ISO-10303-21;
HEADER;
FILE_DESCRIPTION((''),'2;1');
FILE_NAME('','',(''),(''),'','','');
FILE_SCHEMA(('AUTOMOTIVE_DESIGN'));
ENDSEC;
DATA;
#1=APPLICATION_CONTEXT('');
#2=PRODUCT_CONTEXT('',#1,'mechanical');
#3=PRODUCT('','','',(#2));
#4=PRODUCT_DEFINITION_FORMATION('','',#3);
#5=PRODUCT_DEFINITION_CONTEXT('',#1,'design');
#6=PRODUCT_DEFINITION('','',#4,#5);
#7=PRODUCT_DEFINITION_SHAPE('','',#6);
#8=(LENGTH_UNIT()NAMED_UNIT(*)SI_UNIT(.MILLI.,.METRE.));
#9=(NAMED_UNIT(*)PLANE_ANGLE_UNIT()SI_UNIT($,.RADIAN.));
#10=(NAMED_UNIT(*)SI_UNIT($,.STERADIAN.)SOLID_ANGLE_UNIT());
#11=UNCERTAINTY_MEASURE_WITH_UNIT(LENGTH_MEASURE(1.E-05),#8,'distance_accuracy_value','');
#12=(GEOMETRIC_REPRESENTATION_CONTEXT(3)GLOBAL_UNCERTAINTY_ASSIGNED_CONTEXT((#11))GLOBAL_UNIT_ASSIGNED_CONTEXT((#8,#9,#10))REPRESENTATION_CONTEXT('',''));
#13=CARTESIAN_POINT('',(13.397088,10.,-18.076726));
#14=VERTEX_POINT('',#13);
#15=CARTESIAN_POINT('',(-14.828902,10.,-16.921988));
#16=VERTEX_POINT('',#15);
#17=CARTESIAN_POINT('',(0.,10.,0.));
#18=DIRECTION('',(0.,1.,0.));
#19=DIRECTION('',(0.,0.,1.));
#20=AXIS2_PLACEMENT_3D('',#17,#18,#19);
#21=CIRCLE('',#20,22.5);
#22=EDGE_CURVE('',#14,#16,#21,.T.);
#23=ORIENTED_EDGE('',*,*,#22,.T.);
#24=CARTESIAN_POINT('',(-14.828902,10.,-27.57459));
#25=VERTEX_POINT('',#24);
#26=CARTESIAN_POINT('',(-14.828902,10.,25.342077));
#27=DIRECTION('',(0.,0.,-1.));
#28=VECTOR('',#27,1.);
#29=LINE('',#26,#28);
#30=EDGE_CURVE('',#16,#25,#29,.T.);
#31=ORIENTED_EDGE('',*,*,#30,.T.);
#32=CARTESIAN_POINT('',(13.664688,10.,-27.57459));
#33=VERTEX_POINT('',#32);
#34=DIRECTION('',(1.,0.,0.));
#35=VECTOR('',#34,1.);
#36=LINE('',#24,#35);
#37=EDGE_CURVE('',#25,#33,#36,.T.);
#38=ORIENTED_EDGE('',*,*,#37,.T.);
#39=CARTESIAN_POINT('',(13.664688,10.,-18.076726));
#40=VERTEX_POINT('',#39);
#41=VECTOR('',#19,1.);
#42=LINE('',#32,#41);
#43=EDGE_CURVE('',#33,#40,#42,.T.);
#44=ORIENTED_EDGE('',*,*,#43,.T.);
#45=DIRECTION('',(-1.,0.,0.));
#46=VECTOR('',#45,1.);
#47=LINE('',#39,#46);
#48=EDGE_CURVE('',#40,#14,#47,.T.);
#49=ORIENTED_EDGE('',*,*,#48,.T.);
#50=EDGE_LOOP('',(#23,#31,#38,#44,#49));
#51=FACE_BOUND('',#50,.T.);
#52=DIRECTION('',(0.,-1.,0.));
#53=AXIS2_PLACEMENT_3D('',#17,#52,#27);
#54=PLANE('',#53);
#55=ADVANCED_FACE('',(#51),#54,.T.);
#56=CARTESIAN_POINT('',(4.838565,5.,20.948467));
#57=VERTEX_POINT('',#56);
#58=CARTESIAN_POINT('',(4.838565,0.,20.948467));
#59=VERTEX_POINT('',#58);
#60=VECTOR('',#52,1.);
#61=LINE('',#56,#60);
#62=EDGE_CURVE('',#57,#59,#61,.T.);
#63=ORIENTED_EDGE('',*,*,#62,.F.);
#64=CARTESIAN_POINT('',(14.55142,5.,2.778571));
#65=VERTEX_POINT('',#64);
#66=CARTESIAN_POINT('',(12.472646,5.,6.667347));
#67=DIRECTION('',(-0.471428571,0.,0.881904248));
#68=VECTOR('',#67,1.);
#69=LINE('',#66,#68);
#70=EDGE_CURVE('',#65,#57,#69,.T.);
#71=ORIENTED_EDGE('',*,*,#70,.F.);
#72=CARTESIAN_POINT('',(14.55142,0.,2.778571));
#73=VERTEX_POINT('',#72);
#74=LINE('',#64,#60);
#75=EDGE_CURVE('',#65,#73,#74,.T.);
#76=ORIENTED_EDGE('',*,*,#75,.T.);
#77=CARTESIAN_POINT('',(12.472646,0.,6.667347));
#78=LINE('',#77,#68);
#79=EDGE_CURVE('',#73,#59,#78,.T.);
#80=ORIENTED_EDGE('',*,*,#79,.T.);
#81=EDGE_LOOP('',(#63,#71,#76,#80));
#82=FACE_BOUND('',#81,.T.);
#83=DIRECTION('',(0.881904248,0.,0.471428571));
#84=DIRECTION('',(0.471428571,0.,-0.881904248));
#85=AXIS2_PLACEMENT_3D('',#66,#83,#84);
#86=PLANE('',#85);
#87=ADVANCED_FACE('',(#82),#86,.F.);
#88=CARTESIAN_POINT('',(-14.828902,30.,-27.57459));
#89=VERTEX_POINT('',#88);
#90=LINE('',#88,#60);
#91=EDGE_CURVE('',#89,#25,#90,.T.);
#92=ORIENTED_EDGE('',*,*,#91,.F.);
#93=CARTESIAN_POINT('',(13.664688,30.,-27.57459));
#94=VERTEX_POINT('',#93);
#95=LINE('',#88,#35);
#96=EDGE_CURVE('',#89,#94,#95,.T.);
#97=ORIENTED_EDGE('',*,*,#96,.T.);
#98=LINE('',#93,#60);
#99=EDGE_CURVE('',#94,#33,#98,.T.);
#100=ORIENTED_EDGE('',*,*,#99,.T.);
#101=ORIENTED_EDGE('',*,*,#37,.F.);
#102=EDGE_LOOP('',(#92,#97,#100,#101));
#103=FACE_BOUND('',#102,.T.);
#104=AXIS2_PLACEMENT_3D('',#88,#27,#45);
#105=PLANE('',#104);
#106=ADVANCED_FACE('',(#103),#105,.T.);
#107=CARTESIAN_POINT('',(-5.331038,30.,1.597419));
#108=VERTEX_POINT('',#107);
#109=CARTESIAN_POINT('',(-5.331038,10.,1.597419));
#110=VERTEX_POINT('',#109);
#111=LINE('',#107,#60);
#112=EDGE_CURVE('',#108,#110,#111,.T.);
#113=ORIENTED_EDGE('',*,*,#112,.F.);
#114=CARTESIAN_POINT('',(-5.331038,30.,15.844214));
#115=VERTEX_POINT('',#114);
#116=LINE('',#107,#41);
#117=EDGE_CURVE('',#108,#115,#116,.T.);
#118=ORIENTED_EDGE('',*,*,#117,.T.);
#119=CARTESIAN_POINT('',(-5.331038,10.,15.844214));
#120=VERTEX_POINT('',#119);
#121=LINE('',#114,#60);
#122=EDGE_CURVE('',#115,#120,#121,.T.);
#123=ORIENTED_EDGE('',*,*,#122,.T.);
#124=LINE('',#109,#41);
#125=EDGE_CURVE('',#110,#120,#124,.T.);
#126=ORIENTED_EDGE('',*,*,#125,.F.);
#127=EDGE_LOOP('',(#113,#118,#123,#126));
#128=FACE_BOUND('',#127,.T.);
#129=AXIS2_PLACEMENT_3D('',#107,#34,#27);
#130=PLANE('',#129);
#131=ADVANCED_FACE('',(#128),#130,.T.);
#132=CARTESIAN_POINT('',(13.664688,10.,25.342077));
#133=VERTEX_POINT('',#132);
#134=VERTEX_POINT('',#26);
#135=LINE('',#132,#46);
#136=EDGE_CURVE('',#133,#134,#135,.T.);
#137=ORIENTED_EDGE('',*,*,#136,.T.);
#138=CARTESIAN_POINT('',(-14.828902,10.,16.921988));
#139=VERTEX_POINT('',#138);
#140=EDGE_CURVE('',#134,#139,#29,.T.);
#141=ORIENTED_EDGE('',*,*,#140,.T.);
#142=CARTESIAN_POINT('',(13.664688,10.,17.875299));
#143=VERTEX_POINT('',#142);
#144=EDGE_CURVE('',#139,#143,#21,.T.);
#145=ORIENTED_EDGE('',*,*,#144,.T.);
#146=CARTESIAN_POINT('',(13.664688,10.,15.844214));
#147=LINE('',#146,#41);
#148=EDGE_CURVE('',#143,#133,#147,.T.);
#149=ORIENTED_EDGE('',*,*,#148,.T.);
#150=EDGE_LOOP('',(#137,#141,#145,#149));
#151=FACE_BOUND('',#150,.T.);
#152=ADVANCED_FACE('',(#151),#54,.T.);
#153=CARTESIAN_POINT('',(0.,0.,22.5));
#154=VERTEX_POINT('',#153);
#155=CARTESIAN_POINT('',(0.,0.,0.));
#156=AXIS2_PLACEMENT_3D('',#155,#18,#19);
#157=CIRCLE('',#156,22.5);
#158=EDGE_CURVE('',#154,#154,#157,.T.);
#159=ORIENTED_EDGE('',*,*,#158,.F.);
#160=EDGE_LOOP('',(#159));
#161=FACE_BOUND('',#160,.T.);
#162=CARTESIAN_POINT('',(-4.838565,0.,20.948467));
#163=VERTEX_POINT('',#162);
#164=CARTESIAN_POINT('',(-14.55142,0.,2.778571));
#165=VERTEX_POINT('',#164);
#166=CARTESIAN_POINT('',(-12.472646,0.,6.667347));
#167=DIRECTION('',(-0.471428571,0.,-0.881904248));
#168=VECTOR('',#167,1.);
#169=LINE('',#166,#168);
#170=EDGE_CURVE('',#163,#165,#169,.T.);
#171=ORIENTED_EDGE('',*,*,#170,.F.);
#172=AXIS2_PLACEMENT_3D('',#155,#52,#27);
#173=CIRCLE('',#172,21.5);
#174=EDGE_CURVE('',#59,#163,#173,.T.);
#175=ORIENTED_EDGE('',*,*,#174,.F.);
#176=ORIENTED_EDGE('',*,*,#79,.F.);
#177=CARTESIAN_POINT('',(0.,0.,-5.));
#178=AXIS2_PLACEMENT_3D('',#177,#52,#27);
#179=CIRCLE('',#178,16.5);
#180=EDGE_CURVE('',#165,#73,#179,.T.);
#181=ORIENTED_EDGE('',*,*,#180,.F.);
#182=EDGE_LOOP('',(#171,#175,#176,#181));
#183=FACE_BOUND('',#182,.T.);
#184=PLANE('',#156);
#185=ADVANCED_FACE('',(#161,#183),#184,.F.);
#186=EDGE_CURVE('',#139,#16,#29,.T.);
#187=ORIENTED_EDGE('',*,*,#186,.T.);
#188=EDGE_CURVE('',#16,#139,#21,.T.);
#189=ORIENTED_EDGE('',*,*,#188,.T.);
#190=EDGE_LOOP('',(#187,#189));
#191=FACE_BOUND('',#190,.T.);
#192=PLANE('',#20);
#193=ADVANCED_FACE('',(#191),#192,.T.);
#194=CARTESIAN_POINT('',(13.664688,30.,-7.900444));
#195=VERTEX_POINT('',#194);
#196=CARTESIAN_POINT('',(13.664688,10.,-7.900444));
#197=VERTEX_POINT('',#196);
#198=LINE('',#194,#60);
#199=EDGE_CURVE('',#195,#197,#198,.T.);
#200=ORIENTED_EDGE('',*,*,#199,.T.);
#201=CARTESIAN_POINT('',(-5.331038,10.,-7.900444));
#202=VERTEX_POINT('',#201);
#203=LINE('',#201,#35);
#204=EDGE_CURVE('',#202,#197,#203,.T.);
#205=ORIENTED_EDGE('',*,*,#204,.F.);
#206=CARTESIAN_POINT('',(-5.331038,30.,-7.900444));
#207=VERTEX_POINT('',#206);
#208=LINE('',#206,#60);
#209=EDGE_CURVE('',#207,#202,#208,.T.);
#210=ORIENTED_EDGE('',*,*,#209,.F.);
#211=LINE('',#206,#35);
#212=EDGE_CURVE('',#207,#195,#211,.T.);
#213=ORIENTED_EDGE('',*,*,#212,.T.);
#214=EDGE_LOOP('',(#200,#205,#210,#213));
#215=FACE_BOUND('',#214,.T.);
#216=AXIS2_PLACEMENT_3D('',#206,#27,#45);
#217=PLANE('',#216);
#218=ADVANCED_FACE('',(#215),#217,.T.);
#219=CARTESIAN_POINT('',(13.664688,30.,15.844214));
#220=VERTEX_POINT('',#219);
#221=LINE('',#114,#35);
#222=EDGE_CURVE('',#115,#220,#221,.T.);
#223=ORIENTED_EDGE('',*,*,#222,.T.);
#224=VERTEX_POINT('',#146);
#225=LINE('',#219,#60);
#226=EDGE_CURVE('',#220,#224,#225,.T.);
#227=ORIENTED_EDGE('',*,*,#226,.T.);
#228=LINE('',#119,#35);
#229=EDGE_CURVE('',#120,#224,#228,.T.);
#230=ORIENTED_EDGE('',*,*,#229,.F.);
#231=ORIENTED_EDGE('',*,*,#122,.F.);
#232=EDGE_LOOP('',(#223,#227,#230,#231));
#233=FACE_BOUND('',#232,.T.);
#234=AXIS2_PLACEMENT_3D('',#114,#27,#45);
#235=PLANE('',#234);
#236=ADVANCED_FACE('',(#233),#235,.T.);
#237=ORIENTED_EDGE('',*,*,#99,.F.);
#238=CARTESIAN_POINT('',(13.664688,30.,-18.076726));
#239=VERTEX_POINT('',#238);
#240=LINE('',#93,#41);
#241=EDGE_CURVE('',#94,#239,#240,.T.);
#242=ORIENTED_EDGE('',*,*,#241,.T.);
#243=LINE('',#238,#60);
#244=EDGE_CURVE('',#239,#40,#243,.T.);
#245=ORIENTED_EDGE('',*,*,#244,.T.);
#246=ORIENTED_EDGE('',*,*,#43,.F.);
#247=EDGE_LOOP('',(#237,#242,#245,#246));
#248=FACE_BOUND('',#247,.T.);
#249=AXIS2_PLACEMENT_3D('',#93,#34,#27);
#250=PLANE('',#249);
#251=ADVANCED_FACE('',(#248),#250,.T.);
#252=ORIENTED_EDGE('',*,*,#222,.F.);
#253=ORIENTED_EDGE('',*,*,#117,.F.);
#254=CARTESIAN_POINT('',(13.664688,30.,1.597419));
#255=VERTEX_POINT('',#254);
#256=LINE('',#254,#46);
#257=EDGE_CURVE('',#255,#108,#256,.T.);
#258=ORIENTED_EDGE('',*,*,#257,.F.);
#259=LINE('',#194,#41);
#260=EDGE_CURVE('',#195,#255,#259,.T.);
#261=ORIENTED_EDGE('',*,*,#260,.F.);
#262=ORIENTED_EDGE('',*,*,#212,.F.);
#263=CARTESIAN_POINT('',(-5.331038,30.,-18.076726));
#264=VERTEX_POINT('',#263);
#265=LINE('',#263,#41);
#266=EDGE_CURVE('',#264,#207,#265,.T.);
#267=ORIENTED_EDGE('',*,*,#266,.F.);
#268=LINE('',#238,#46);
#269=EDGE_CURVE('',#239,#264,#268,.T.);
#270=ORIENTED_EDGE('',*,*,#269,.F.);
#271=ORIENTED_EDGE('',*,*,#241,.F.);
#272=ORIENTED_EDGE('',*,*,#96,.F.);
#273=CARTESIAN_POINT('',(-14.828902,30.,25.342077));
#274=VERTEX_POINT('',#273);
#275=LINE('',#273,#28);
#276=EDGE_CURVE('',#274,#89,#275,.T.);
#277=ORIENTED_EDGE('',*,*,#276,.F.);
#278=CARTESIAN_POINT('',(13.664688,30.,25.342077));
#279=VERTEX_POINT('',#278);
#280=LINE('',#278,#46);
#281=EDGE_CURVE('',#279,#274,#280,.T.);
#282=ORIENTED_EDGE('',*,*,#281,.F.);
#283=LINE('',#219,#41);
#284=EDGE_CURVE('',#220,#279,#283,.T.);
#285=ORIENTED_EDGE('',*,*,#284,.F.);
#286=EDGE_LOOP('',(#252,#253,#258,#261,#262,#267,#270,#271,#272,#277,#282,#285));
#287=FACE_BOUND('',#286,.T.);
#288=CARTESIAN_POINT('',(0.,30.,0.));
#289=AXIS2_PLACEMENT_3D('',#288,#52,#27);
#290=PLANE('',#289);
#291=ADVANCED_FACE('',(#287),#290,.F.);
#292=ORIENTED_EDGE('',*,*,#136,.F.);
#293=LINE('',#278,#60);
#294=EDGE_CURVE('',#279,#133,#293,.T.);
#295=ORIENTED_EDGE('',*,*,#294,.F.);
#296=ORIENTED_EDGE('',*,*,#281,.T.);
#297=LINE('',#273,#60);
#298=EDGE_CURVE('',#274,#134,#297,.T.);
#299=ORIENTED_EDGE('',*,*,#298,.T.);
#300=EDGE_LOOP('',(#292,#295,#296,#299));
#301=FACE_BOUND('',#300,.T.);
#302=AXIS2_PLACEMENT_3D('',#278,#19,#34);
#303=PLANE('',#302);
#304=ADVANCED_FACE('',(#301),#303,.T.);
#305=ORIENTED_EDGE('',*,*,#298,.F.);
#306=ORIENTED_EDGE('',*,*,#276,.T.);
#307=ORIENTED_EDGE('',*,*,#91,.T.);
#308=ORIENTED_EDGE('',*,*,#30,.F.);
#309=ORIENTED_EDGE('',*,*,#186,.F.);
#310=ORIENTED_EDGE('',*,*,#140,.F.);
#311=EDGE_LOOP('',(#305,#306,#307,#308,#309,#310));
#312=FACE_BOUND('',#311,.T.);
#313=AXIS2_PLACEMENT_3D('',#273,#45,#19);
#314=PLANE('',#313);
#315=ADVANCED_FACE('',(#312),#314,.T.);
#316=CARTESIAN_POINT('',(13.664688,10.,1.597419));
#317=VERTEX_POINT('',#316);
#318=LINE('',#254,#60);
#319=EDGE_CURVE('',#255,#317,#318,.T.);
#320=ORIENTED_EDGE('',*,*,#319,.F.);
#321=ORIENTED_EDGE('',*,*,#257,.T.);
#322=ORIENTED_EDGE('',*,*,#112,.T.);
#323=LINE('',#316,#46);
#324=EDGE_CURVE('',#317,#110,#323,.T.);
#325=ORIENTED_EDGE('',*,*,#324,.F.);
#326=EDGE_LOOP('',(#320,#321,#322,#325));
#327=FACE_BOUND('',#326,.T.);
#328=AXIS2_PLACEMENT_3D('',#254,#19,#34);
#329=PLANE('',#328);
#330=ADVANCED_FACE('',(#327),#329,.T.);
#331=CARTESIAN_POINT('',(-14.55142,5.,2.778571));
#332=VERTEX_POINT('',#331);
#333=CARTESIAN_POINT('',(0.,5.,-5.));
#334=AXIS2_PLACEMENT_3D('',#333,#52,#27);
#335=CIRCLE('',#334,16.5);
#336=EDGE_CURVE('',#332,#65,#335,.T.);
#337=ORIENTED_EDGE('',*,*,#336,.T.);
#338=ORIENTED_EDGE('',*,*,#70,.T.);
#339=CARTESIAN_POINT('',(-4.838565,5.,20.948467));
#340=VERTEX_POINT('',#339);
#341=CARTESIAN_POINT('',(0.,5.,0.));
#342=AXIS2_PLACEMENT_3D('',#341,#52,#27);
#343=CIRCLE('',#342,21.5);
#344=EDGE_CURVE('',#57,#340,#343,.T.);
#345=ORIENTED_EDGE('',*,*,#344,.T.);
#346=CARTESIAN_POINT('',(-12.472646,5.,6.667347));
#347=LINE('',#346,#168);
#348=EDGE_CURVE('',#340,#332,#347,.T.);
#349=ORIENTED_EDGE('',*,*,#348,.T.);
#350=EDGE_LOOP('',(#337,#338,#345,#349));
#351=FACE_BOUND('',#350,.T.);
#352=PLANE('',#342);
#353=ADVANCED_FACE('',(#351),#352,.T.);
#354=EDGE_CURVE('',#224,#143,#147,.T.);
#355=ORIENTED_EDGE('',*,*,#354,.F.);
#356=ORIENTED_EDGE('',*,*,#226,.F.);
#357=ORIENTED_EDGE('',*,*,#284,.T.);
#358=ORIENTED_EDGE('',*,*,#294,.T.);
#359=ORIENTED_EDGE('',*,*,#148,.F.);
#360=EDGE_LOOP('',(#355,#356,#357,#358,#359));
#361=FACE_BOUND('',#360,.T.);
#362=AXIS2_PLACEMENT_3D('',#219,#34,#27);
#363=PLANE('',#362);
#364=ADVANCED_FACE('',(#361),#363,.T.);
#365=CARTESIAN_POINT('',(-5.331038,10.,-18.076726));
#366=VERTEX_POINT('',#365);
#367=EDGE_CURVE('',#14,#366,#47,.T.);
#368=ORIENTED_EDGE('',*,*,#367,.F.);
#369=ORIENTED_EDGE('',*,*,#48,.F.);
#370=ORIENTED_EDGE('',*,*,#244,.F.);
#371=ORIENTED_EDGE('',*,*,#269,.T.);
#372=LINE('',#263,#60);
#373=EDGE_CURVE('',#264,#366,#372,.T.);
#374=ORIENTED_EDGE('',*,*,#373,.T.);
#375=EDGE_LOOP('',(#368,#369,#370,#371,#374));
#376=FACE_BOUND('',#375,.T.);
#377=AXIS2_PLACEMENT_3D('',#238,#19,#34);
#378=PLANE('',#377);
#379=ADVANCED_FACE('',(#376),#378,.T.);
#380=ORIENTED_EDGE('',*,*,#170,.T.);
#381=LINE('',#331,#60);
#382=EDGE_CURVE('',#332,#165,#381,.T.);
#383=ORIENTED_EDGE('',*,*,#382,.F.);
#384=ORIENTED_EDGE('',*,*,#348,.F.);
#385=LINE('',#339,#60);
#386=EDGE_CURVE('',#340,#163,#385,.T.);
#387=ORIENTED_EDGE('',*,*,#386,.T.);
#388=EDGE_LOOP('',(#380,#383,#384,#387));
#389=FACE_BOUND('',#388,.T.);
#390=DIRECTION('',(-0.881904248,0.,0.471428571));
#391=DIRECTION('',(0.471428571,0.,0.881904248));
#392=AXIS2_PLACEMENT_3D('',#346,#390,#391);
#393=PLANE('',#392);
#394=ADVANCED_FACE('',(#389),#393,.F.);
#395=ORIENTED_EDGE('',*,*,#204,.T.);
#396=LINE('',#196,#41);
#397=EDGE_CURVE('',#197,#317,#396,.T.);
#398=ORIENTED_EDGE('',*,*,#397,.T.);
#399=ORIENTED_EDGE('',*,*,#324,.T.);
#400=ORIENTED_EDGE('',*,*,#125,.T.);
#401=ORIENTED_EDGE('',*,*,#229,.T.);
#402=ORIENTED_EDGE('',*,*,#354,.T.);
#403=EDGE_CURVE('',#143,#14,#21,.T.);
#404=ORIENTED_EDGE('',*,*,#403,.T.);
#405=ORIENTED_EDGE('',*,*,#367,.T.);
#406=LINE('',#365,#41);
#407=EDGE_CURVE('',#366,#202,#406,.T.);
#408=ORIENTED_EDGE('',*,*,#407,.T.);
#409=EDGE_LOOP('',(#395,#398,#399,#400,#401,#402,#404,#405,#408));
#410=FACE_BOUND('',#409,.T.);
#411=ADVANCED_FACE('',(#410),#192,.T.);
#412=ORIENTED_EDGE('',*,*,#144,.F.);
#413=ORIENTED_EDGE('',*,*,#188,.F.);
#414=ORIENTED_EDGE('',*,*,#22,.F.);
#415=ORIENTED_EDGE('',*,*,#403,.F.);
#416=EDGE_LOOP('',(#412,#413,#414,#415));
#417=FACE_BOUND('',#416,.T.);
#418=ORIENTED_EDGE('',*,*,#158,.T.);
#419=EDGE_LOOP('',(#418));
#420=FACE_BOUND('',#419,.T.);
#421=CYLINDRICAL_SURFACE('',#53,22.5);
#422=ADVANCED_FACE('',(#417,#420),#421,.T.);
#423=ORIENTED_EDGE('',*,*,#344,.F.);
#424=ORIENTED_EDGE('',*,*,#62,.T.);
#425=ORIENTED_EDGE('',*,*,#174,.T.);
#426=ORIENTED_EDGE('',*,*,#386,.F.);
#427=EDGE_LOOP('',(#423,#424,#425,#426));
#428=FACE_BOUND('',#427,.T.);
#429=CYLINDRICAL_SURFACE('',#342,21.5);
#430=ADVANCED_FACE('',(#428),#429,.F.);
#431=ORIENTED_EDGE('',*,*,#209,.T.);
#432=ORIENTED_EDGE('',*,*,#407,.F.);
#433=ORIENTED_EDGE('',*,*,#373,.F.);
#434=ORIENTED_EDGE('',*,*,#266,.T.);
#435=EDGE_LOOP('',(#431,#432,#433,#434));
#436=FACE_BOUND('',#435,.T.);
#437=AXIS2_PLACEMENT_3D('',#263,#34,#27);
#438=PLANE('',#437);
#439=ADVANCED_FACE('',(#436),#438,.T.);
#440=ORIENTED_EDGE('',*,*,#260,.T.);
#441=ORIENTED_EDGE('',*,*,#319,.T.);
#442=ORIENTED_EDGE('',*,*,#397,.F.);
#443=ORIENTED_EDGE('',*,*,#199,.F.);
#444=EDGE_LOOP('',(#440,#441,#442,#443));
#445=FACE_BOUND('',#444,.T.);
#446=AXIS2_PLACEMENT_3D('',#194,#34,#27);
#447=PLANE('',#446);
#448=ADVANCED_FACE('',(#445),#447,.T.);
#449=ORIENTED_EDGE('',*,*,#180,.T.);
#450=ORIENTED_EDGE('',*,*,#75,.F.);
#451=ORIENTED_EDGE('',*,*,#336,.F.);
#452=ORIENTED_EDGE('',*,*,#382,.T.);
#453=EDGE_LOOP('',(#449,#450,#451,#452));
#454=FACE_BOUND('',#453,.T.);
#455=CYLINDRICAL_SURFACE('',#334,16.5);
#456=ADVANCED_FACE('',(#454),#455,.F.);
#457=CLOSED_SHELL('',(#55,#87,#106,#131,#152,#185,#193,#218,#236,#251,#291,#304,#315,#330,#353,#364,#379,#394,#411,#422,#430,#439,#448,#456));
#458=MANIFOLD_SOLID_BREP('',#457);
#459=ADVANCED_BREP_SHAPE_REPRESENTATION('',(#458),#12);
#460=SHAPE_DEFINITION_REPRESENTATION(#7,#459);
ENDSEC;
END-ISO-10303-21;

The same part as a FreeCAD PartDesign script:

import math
import FreeCAD as App
import Part
import Sketcher

doc = App.newDocument("Part")
body = doc.addObject("PartDesign::Body", "Body")

# Sketch on XZ plane
sketch1 = body.newObject("Sketcher::SketchObject", "Sketch")
sketch1.AttachmentSupport = (doc.getObject("XZ_Plane"), [""])
sketch1.MapMode = "FlatFace"
sketch1.addGeometry(Part.Circle(App.Vector(0, 0, 0), App.Vector(0, 0, 1), 22), False)
sketch1.addConstraint([
    Sketcher.Constraint("Coincident", 0, 3, -1, 1),
    Sketcher.Constraint("Diameter", 0, 45.0),
])
pad1 = body.newObject("PartDesign::Pad", "Pad")
pad1.Profile = sketch1
pad1.Length = 10
pad1.Reversed = True

# Sketch on XZ plane
sketch2 = body.newObject("Sketcher::SketchObject", "Sketch001")
sketch2.AttachmentSupport = (doc.getObject("XZ_Plane"), [""])
sketch2.MapMode = "FlatFace"
sketch2.AttachmentOffset = App.Placement(App.Vector(0, 0, -10), App.Rotation())
sketch2.addGeometry([
    Part.LineSegment(App.Vector(14, -28, 0), App.Vector(-15, -28, 0)),  # 0
    Part.LineSegment(App.Vector(-15, -28, 0), App.Vector(-15, 25, 0)),  # 1
    Part.LineSegment(App.Vector(-15, 25, 0), App.Vector(14, 25, 0)),  # 2
    Part.LineSegment(App.Vector(14, 25, 0), App.Vector(14, 16, 0)),  # 3
    Part.LineSegment(App.Vector(14, 16, 0), App.Vector(-5, 16, 0)),  # 4
    Part.LineSegment(App.Vector(-5, 16, 0), App.Vector(-5, 2, 0)),  # 5
    Part.LineSegment(App.Vector(-5, 2, 0), App.Vector(14, 2, 0)),  # 6
    Part.LineSegment(App.Vector(14, 2, 0), App.Vector(14, -8, 0)),  # 7
    Part.LineSegment(App.Vector(14, -8, 0), App.Vector(-5, -8, 0)),  # 8
    Part.LineSegment(App.Vector(-5, -8, 0), App.Vector(-5, -18, 0)),  # 9
    Part.LineSegment(App.Vector(-5, -18, 0), App.Vector(14, -18, 0)),  # 10
    Part.LineSegment(App.Vector(14, -18, 0), App.Vector(14, -28, 0)),  # 11
], False)
sketch2.addConstraint([
    Sketcher.Constraint("Coincident", 0, 2, 1, 1),
    Sketcher.Constraint("Coincident", 1, 2, 2, 1),
    Sketcher.Constraint("Coincident", 2, 2, 3, 1),
    Sketcher.Constraint("Coincident", 3, 2, 4, 1),
    Sketcher.Constraint("Coincident", 4, 2, 5, 1),
    Sketcher.Constraint("Coincident", 5, 2, 6, 1),
    Sketcher.Constraint("Coincident", 6, 2, 7, 1),
    Sketcher.Constraint("Coincident", 7, 2, 8, 1),
    Sketcher.Constraint("Coincident", 8, 2, 9, 1),
    Sketcher.Constraint("Coincident", 9, 2, 10, 1),
    Sketcher.Constraint("Coincident", 10, 2, 11, 1),
    Sketcher.Constraint("Coincident", 11, 2, 0, 1),
    Sketcher.Constraint("Horizontal", 0),
    Sketcher.Constraint("Vertical", 1),
    Sketcher.Constraint("Horizontal", 2),
    Sketcher.Constraint("Vertical", 3),
    Sketcher.Constraint("Horizontal", 4),
    Sketcher.Constraint("Vertical", 5),
    Sketcher.Constraint("Horizontal", 6),
    Sketcher.Constraint("Vertical", 7),
    Sketcher.Constraint("Horizontal", 8),
    Sketcher.Constraint("Vertical", 9),
    Sketcher.Constraint("Horizontal", 10),
    Sketcher.Constraint("Vertical", 11),
    Sketcher.Constraint("Vertical", 3, 2, 6, 2),
    Sketcher.Constraint("Vertical", 5, 2, 8, 2),
    Sketcher.Constraint("Vertical", 7, 2, 10, 2),
    Sketcher.Constraint("Equal", 3, 7),
    Sketcher.Constraint("Equal", 7, 11),
    Sketcher.Constraint("DistanceX", 0, 2, 0, 1, 28.49359),
    Sketcher.Constraint("DistanceX", 0, 2, -1, 1, 14.828902),
    Sketcher.Constraint("DistanceX", 4, 2, 4, 1, 18.995726),
    Sketcher.Constraint("DistanceY", 1, 1, 1, 2, 52.916667),
    Sketcher.Constraint("DistanceY", 3, 2, 3, 1, 9.497863),
    Sketcher.Constraint("DistanceY", 5, 2, 5, 1, 14.246795),
    Sketcher.Constraint("DistanceY", 0, 2, -1, 1, 27.57459),
])
pad2 = body.newObject("PartDesign::Pad", "Pad001")
pad2.Profile = sketch2
pad2.Length = 20
pad2.Reversed = True

# Sketch on XZ plane
sketch3 = body.newObject("Sketcher::SketchObject", "Sketch002")
sketch3.AttachmentSupport = (doc.getObject("XZ_Plane"), [""])
sketch3.MapMode = "FlatFace"
sketch3.addGeometry([
    Part.LineSegment(App.Vector(15, 3, 0), App.Vector(5, 21, 0)),
    Part.ArcOfCircle(Part.Circle(App.Vector(0, 0, 0), App.Vector(0, 0, 1), 22), math.radians(77), math.radians(103)),
    Part.LineSegment(App.Vector(-5, 21, 0), App.Vector(-15, 3, 0)),
    Part.ArcOfCircle(Part.Circle(App.Vector(0, -5, 0), App.Vector(0, 0, 1), 16), math.radians(152), math.radians(388)),
], False)
sketch3.addConstraint([
    Sketcher.Constraint("Coincident", 0, 2, 1, 1),
    Sketcher.Constraint("Coincident", 1, 2, 2, 1),
    Sketcher.Constraint("Tangent", 2, 2, 3, 1),
    Sketcher.Constraint("Tangent", 3, 2, 0, 1),
    Sketcher.Constraint("Coincident", 1, 3, -1, 1),
    Sketcher.Constraint("Symmetric", 2, 2, 3, 2, -2),
    Sketcher.Constraint("Radius", 1, 21.5),
    Sketcher.Constraint("Radius", 3, 16.5),
    Sketcher.Constraint("DistanceY", 3, 3, -1, 1, 5.0),
    Sketcher.Constraint("DistanceX", 2, 2, -1, 1, 14.55142),
])
pocket1 = body.newObject("PartDesign::Pocket", "Pocket")
pocket1.Profile = sketch3
pocket1.Length = 5

doc.recompute()
